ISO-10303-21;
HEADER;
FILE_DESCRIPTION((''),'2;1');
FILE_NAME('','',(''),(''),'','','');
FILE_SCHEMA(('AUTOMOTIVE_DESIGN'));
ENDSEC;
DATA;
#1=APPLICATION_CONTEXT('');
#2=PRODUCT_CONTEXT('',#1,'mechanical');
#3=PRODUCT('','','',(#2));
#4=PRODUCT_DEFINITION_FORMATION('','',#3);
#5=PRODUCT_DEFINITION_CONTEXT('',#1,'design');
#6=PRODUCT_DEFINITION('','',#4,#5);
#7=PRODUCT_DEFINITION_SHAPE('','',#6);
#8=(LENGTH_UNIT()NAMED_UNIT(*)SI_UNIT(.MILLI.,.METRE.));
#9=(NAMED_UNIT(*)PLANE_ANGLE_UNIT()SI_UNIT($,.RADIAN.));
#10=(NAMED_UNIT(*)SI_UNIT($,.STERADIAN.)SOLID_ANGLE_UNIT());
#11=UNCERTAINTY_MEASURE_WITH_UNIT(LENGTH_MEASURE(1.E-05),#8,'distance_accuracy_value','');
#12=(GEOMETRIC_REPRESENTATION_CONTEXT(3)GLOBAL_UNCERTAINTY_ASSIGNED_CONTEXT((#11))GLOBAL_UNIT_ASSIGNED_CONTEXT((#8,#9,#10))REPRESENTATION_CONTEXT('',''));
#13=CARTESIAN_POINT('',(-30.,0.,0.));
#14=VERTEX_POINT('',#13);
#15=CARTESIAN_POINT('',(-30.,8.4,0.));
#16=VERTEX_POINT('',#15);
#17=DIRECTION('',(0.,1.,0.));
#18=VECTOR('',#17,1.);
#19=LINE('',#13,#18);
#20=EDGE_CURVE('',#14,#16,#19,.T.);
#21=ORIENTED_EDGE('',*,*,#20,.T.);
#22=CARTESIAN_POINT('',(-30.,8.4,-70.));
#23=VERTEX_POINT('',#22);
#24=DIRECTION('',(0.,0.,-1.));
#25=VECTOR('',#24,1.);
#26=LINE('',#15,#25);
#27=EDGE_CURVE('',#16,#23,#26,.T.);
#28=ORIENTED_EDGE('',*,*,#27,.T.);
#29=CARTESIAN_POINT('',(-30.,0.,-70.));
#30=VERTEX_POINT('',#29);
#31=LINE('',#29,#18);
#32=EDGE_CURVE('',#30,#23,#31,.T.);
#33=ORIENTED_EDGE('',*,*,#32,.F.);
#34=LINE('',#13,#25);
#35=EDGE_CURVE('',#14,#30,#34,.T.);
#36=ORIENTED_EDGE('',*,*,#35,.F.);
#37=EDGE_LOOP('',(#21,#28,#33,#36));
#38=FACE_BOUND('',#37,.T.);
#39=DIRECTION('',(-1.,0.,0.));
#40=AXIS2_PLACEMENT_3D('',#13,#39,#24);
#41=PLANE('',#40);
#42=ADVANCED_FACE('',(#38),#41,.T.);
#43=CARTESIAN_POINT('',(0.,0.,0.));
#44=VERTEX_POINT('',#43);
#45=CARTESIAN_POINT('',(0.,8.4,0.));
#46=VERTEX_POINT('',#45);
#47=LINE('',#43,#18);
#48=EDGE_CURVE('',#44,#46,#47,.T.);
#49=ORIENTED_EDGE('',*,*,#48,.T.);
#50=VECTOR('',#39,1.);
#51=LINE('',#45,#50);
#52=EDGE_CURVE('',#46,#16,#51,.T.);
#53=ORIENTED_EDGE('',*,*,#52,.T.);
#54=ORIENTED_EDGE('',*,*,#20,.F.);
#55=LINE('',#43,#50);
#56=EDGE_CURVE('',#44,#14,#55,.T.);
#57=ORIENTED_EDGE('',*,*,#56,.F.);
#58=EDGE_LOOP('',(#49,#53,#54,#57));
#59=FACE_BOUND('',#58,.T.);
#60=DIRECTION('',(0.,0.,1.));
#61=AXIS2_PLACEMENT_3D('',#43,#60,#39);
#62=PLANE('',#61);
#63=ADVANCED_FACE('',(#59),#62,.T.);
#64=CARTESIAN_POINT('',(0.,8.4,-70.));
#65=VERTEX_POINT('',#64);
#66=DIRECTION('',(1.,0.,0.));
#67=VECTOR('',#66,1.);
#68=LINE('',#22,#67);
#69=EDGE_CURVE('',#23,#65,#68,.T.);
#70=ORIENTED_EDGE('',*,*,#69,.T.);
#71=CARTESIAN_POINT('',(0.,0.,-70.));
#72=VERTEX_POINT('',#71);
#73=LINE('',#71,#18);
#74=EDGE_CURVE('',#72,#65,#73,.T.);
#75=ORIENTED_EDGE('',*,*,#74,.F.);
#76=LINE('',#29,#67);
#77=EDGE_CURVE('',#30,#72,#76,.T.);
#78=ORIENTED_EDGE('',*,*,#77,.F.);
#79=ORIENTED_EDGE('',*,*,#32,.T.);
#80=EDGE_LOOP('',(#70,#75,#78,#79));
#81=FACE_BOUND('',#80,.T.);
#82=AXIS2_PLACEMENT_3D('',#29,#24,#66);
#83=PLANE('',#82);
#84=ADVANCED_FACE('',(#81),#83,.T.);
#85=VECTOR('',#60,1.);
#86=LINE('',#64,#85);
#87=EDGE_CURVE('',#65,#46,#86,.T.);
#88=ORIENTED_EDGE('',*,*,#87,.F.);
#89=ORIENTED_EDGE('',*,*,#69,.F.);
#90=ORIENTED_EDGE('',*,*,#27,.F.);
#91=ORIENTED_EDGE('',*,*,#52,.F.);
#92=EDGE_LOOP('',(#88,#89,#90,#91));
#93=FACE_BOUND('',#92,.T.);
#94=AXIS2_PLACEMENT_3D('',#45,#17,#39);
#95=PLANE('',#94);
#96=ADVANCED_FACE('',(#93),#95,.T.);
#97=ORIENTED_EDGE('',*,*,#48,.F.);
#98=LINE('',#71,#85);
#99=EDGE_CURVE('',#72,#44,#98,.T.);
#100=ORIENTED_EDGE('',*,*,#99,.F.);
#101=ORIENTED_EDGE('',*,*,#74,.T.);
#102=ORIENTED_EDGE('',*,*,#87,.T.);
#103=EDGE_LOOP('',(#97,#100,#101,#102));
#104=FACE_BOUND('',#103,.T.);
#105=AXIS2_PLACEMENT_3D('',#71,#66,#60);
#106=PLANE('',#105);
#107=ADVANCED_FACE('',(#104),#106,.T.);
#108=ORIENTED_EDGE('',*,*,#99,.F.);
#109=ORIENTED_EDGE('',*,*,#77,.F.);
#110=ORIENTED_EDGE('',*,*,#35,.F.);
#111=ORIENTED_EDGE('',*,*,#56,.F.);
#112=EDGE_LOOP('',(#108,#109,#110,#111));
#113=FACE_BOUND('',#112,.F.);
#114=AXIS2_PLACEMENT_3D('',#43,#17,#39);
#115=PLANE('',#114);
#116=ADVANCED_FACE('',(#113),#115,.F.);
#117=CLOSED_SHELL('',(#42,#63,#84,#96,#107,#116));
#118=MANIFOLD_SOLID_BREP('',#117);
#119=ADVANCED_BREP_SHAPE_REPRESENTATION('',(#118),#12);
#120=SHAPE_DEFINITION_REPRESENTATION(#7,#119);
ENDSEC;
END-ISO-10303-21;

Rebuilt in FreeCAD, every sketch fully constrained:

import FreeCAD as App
import Part
import Sketcher
from FreeCAD import Vector

doc = App.newDocument("Part")
body = doc.addObject("PartDesign::Body", "Body")

# Sketch on XZ plane
sketch1 = body.newObject("Sketcher::SketchObject", "Sketch")
sketch1.AttachmentSupport = (doc.getObject("XZ_Plane"), [""])
sketch1.MapMode = "FlatFace"
sketch1.addGeometry([
    Part.LineSegment(Vector(-30, 0, 0), Vector(0, 0, 0)),
    Part.LineSegment(Vector(0, 0, 0), Vector(0, -70, 0)),
    Part.LineSegment(Vector(0, -70, 0), Vector(-30, -70, 0)),
    Part.LineSegment(Vector(-30, -70, 0), Vector(-30, 0, 0)),
], False)
sketch1.addConstraint([
    Sketcher.Constraint("Coincident", 0, 2, 1, 1),
    Sketcher.Constraint("Coincident", 1, 2, 2, 1),
    Sketcher.Constraint("Coincident", 2, 2, 3, 1),
    Sketcher.Constraint("Coincident", 3, 2, 0, 1),
    Sketcher.Constraint("Horizontal", 0),
    Sketcher.Constraint("Vertical", 1),
    Sketcher.Constraint("Horizontal", 2),
    Sketcher.Constraint("Vertical", 3),
    Sketcher.Constraint("Coincident", 0, 2, -1, 1),
    Sketcher.Constraint("DistanceX", 0, 1, 0, 2, 30.0),
    Sketcher.Constraint("DistanceY", 1, 2, 1, 1, 70.0),
])
pad1 = body.newObject("PartDesign::Pad", "Pad")
pad1.Profile = sketch1
pad1.Length = 8.4
pad1.Reversed = True

doc.recompute()
